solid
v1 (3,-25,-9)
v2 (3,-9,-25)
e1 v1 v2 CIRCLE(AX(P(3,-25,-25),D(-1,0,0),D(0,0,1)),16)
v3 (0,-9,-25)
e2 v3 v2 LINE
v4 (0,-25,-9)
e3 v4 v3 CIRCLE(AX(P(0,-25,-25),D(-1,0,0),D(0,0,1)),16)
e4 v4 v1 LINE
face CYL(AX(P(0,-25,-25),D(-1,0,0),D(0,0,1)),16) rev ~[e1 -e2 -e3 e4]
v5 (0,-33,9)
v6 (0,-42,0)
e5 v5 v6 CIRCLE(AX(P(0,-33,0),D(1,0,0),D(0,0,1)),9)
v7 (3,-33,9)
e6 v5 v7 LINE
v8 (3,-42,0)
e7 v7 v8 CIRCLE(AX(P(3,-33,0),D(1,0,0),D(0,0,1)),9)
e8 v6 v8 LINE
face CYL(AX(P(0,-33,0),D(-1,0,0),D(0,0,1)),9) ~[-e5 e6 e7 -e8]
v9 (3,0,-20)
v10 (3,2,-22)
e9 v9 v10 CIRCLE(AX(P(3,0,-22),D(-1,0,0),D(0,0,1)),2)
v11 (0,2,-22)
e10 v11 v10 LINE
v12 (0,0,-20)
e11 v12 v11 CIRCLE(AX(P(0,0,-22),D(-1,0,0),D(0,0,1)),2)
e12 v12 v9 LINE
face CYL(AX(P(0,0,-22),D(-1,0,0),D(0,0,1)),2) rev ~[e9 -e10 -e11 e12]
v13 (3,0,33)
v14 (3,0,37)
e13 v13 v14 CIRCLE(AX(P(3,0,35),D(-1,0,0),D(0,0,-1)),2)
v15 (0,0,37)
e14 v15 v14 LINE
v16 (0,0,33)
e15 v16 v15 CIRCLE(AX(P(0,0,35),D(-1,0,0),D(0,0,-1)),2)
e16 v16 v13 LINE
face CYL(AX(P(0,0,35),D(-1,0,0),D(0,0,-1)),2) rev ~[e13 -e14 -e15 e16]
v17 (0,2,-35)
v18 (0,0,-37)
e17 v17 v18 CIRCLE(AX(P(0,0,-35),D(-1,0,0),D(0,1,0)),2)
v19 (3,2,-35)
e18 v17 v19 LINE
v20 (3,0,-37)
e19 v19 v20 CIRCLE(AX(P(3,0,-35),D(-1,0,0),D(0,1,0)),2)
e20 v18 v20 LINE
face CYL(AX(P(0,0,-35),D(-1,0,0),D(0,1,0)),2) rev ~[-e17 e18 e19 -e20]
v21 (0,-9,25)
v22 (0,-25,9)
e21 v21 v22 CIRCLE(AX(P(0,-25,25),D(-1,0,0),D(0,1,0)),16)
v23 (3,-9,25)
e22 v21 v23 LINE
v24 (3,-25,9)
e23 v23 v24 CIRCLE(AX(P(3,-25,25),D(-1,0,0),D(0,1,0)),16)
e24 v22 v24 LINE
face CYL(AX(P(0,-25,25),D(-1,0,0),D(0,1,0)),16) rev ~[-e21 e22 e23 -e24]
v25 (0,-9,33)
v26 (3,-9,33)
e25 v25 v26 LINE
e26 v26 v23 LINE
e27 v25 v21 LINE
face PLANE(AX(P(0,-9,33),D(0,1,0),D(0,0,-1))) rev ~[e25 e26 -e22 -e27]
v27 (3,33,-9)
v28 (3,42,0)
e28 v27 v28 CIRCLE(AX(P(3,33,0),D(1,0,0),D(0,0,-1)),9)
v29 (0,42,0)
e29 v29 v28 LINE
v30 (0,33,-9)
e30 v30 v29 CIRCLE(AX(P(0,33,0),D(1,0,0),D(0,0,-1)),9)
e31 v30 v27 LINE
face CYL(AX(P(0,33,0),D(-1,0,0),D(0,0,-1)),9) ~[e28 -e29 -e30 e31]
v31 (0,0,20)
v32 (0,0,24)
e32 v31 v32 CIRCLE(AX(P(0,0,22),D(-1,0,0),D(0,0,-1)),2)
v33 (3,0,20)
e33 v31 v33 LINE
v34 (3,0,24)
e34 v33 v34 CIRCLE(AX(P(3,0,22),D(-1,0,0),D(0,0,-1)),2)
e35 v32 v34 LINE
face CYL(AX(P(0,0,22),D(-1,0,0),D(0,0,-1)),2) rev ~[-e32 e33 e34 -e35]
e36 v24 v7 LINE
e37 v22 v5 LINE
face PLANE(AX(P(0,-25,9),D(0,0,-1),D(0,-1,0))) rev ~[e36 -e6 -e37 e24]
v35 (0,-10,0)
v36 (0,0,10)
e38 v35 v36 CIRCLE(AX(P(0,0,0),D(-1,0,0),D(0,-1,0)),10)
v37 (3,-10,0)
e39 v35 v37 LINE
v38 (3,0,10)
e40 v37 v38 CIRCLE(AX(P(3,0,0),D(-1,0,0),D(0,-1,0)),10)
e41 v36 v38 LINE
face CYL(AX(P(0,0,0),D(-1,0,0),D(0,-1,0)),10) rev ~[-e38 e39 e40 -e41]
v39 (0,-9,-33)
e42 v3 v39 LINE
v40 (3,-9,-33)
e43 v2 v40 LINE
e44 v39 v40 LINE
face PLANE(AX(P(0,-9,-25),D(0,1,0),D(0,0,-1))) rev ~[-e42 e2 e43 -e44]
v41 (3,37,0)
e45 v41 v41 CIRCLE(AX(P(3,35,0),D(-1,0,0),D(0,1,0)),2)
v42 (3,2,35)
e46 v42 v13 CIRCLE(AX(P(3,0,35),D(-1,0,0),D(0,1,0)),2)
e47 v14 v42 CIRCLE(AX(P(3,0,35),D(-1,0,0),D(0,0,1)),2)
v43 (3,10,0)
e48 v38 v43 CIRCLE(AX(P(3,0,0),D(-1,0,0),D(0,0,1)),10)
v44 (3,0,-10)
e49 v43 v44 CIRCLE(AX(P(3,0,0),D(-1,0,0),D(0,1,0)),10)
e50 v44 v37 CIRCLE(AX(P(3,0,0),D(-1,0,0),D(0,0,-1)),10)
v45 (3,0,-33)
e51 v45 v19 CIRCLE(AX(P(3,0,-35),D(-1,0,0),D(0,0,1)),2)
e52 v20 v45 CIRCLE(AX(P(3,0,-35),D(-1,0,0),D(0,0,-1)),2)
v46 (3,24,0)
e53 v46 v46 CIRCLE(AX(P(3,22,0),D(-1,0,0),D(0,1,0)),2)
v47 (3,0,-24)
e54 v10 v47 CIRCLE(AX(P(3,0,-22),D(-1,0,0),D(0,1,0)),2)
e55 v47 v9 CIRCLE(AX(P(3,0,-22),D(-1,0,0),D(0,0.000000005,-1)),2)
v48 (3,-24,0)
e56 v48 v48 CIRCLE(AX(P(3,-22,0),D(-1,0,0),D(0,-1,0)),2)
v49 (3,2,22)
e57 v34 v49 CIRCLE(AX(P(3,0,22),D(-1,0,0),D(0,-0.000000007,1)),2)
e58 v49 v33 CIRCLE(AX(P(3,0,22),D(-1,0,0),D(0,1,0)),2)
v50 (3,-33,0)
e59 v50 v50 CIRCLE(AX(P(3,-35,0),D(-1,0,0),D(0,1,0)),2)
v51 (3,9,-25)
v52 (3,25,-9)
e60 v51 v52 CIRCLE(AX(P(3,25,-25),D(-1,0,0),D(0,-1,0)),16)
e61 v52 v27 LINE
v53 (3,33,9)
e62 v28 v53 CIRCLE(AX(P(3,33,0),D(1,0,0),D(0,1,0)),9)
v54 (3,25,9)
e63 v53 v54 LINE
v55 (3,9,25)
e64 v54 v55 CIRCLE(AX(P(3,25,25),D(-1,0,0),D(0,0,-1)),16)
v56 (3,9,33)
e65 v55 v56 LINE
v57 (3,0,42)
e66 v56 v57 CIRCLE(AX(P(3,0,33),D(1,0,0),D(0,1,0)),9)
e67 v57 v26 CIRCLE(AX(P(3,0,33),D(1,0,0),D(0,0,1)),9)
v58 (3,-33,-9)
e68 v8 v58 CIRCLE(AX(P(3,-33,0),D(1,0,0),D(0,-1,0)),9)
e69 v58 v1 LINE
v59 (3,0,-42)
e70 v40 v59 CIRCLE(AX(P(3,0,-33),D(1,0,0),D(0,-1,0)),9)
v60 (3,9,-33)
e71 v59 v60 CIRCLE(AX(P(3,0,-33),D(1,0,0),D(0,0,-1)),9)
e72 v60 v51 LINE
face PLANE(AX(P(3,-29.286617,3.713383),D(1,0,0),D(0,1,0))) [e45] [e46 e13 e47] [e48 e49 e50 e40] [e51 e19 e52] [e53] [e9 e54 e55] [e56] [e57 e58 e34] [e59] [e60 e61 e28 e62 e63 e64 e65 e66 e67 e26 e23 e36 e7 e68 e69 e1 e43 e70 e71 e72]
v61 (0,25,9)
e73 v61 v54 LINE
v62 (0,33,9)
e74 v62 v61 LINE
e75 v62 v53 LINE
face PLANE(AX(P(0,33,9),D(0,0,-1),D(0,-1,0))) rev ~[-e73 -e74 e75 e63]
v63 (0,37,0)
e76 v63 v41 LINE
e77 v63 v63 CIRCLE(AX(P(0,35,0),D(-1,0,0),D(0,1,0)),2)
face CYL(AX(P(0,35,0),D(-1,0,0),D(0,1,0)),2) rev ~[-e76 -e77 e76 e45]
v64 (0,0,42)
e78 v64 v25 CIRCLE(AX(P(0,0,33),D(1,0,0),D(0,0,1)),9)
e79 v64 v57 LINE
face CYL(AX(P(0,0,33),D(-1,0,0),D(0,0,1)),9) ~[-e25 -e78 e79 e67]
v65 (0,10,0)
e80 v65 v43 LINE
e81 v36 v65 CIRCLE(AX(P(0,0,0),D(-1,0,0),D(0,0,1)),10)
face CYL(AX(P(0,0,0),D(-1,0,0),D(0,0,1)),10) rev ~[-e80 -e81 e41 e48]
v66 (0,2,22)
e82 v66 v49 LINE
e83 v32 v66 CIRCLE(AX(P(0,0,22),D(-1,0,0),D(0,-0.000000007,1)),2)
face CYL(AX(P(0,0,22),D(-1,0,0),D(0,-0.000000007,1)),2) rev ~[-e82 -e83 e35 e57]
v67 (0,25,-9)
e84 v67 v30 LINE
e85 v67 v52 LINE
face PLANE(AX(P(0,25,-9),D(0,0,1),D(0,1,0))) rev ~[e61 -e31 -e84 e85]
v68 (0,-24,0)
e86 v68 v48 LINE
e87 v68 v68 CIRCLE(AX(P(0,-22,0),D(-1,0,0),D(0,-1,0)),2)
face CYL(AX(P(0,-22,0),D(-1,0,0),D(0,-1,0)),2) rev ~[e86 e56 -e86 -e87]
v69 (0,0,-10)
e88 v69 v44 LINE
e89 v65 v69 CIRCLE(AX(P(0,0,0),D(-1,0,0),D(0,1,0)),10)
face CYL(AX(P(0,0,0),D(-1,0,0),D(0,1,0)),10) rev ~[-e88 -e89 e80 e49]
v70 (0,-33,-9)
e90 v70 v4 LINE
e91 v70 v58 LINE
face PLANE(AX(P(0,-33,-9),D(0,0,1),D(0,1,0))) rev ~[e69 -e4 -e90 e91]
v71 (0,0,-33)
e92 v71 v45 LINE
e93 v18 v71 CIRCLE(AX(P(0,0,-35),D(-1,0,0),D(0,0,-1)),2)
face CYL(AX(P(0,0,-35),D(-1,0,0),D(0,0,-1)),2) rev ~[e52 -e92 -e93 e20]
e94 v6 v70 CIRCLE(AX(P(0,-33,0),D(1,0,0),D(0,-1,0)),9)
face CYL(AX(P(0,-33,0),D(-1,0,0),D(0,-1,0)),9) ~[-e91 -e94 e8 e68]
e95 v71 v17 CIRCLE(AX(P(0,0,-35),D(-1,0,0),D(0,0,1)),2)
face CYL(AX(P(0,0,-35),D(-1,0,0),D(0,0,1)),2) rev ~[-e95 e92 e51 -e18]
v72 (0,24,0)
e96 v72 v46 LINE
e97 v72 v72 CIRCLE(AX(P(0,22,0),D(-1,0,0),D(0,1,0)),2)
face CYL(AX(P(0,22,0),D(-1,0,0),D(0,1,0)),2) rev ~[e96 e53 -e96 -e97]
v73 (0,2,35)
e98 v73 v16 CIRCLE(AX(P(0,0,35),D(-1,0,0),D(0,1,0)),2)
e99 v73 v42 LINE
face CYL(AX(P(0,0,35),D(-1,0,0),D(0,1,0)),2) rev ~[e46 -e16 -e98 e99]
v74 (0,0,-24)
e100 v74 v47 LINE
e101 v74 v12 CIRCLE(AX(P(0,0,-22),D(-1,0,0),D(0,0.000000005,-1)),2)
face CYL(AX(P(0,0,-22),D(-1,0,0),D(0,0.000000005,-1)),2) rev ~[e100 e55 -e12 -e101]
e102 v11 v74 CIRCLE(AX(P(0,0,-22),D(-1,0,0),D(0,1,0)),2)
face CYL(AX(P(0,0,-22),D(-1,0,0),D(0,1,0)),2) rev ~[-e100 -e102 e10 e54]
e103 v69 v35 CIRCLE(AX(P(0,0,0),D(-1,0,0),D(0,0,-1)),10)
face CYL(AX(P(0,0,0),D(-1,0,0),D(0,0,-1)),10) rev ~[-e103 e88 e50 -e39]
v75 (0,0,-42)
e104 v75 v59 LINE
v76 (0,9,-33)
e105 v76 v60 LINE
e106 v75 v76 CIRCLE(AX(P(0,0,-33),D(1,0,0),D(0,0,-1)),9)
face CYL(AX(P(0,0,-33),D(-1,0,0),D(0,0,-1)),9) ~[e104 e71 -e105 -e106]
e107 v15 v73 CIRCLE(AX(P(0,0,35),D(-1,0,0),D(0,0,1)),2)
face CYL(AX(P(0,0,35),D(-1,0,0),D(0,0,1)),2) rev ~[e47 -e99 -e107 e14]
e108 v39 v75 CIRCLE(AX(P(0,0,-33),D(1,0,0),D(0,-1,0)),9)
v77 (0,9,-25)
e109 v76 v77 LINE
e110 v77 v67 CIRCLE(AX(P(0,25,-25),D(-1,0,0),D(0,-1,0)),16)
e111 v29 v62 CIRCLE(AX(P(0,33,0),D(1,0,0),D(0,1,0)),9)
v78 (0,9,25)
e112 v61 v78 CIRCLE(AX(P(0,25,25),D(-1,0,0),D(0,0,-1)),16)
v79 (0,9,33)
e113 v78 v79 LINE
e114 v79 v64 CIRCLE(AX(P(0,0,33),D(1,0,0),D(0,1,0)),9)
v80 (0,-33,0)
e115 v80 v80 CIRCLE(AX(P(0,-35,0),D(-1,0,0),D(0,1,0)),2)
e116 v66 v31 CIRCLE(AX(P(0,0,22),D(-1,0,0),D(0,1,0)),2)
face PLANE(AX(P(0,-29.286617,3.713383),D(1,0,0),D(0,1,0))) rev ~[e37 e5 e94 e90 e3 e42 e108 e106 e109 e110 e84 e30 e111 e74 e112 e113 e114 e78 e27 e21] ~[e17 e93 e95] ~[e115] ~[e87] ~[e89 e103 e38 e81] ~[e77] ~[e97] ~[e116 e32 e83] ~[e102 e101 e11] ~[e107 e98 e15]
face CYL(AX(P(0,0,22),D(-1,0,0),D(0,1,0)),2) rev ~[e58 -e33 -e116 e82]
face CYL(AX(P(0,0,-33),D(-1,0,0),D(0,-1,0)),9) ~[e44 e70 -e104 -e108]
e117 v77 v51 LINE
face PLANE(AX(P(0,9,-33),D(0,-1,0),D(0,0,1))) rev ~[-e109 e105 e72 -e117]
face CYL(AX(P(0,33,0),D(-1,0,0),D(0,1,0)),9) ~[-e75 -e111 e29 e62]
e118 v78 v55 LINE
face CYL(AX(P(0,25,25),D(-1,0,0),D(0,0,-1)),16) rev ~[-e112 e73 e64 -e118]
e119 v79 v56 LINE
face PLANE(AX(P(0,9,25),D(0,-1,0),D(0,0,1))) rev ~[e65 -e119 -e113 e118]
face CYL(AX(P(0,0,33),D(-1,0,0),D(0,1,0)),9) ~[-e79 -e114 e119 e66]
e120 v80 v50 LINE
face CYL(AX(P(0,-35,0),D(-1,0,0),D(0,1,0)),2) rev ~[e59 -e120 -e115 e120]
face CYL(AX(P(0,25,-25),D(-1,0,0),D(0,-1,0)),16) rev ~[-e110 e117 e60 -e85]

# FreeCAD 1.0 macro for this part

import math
import FreeCAD as App
import Part
import Sketcher

doc = App.newDocument("Part")
body = doc.addObject("PartDesign::Body", "Body")

# Sketch on YZ plane
sketch1 = body.newObject("Sketcher::SketchObject", "Sketch")
sketch1.AttachmentSupport = (doc.getObject("YZ_Plane"), [""])
sketch1.MapMode = "FlatFace"
sketch1.addGeometry(Part.LineSegment(App.Vector(25, -9, 0), App.Vector(33, -9, 0)), False)
sketch1.addGeometry(Part.ArcOfCircle(Part.Circle(App.Vector(33, 0, 0), App.Vector(0, 0, 1), 9), math.radians(-90), math.radians(0)), False)
sketch1.addGeometry(Part.ArcOfCircle(Part.Circle(App.Vector(33, 0, 0), App.Vector(0, 0, 1), 9), math.radians(0), math.radians(90)), False)
sketch1.addGeometry(Part.LineSegment(App.Vector(33, 9, 0), App.Vector(25, 9, 0)), False)
sketch1.addGeometry(Part.ArcOfCircle(Part.Circle(App.Vector(25, 25, 0), App.Vector(0, 0, 1), 16), math.radians(180), math.radians(270)), False)
sketch1.addGeometry(Part.LineSegment(App.Vector(9, 25, 0), App.Vector(9, 33, 0)), False)
sketch1.addGeometry(Part.ArcOfCircle(Part.Circle(App.Vector(0, 33, 0), App.Vector(0, 0, 1), 9), math.radians(0), math.radians(90)), False)
sketch1.addGeometry(Part.ArcOfCircle(Part.Circle(App.Vector(0, 33, 0), App.Vector(0, 0, 1), 9), math.radians(90), math.radians(180)), False)
sketch1.addGeometry(Part.LineSegment(App.Vector(-9, 33, 0), App.Vector(-9, 25, 0)), False)
sketch1.addGeometry(Part.ArcOfCircle(Part.Circle(App.Vector(-25, 25, 0), App.Vector(0, 0, 1), 16), math.radians(-90), math.radians(0)), False)
sketch1.addGeometry(Part.LineSegment(App.Vector(-25, 9, 0), App.Vector(-33, 9, 0)), False)
sketch1.addGeometry(Part.ArcOfCircle(Part.Circle(App.Vector(-33, 0, 0), App.Vector(0, 0, 1), 9), math.radians(90), math.radians(180)), False)
sketch1.addGeometry(Part.ArcOfCircle(Part.Circle(App.Vector(-33, 0, 0), App.Vector(0, 0, 1), 9), math.radians(180), math.radians(270)), False)
sketch1.addGeometry(Part.LineSegment(App.Vector(-33, -9, 0), App.Vector(-25, -9, 0)), False)
sketch1.addGeometry(Part.ArcOfCircle(Part.Circle(App.Vector(-25, -25, 0), App.Vector(0, 0, 1), 16), math.radians(0), math.radians(90)), False)
sketch1.addGeometry(Part.LineSegment(App.Vector(-9, -25, 0), App.Vector(-9, -33, 0)), False)
sketch1.addGeometry(Part.ArcOfCircle(Part.Circle(App.Vector(0, -33, 0), App.Vector(0, 0, 1), 9), math.radians(180), math.radians(270)), False)
sketch1.addGeometry(Part.ArcOfCircle(Part.Circle(App.Vector(0, -33, 0), App.Vector(0, 0, 1), 9), math.radians(-90), math.radians(0)), False)
sketch1.addGeometry(Part.LineSegment(App.Vector(9, -33, 0), App.Vector(9, -25, 0)), False)
sketch1.addGeometry(Part.ArcOfCircle(Part.Circle(App.Vector(25, -25, 0), App.Vector(0, 0, 1), 16), math.radians(90), math.radians(180)), False)
sketch1.addGeometry(Part.Circle(App.Vector(35, 0, 0), App.Vector(0, 0, 1), 2), False)
sketch1.addGeometry(Part.ArcOfCircle(Part.Circle(App.Vector(0, -35, 0), App.Vector(0, 0, 1), 2), math.radians(90), math.radians(270)), False)
sketch1.addGeometry(Part.ArcOfCircle(Part.Circle(App.Vector(0, -35, 0), App.Vector(0, 0, 1), 2), math.radians(0), math.radians(90)), False)
sketch1.addGeometry(Part.ArcOfCircle(Part.Circle(App.Vector(0, -35, 0), App.Vector(0, 0, 1), 2), math.radians(-90), math.radians(0)), False)
sketch1.addGeometry(Part.ArcOfCircle(Part.Circle(App.Vector(0, -22, 0), App.Vector(0, 0, 1), 2), math.radians(-90), math.radians(0)), False)
sketch1.addGeometry(Part.ArcOfCircle(Part.Circle(App.Vector(0, -22, 0), App.Vector(0, 0, 1), 2), math.radians(90), math.radians(270)), False)
sketch1.addGeometry(Part.ArcOfCircle(Part.Circle(App.Vector(0, -22, 0), App.Vector(0, 0, 1), 2), math.radians(0), math.radians(90)), False)
sketch1.addGeometry(Part.Circle(App.Vector(-35, 0, 0), App.Vector(0, 0, 1), 2), False)
sketch1.addGeometry(Part.Circle(App.Vector(-22, 0, 0), App.Vector(0, 0, 1), 2), False)
sketch1.addGeometry(Part.ArcOfCircle(Part.Circle(App.Vector(0, 0, 0), App.Vector(0, 0, 1), 10), math.radians(0), math.radians(90)), False)
sketch1.addGeometry(Part.ArcOfCircle(Part.Circle(App.Vector(0, 0, 0), App.Vector(0, 0, 1), 10), math.radians(-90), math.radians(0)), False)
sketch1.addGeometry(Part.ArcOfCircle(Part.Circle(App.Vector(0, 0, 0), App.Vector(0, 0, 1), 10), math.radians(180), math.radians(270)), False)
sketch1.addGeometry(Part.ArcOfCircle(Part.Circle(App.Vector(0, 0, 0), App.Vector(0, 0, 1), 10), math.radians(90), math.radians(180)), False)
sketch1.addGeometry(Part.Circle(App.Vector(22, 0, 0), App.Vector(0, 0, 1), 2), False)
sketch1.addGeometry(Part.ArcOfCircle(Part.Circle(App.Vector(0, 22, 0), App.Vector(0, 0, 1), 2), math.radians(90), math.radians(270)), False)
sketch1.addGeometry(Part.ArcOfCircle(Part.Circle(App.Vector(0, 22, 0), App.Vector(0, 0, 1), 2), math.radians(0), math.radians(90)), False)
sketch1.addGeometry(Part.ArcOfCircle(Part.Circle(App.Vector(0, 22, 0), App.Vector(0, 0, 1), 2), math.radians(-90), math.radians(0)), False)
sketch1.addGeometry(Part.ArcOfCircle(Part.Circle(App.Vector(0, 35, 0), App.Vector(0, 0, 1), 2), math.radians(90), math.radians(270)), False)
sketch1.addGeometry(Part.ArcOfCircle(Part.Circle(App.Vector(0, 35, 0), App.Vector(0, 0, 1), 2), math.radians(0), math.radians(90)), False)
sketch1.addGeometry(Part.ArcOfCircle(Part.Circle(App.Vector(0, 35, 0), App.Vector(0, 0, 1), 2), math.radians(-90), math.radians(0)), False)
sketch1.addConstraint(Sketcher.Constraint("Tangent", 0, 2, 1, 1))
sketch1.addConstraint(Sketcher.Constraint("Tangent", 1, 2, 2, 1))
sketch1.addConstraint(Sketcher.Constraint("Tangent", 2, 2, 3, 1))
sketch1.addConstraint(Sketcher.Constraint("Tangent", 3, 2, 4, 2))
sketch1.addConstraint(Sketcher.Constraint("Tangent", 4, 1, 5, 1))
sketch1.addConstraint(Sketcher.Constraint("Tangent", 5, 2, 6, 1))
sketch1.addConstraint(Sketcher.Constraint("Tangent", 6, 2, 7, 1))
sketch1.addConstraint(Sketcher.Constraint("Tangent", 7, 2, 8, 1))
sketch1.addConstraint(Sketcher.Constraint("Tangent", 8, 2, 9, 2))
sketch1.addConstraint(Sketcher.Constraint("Tangent", 9, 1, 10, 1))
sketch1.addConstraint(Sketcher.Constraint("Tangent", 10, 2, 11, 1))
sketch1.addConstraint(Sketcher.Constraint("Tangent", 11, 2, 12, 1))
sketch1.addConstraint(Sketcher.Constraint("Tangent", 12, 2, 13, 1))
sketch1.addConstraint(Sketcher.Constraint("Tangent", 13, 2, 14, 2))
sketch1.addConstraint(Sketcher.Constraint("Tangent", 14, 1, 15, 1))
sketch1.addConstraint(Sketcher.Constraint("Tangent", 15, 2, 16, 1))
sketch1.addConstraint(Sketcher.Constraint("Tangent", 16, 2, 17, 1))
sketch1.addConstraint(Sketcher.Constraint("Tangent", 17, 2, 18, 1))
sketch1.addConstraint(Sketcher.Constraint("Tangent", 18, 2, 19, 2))
sketch1.addConstraint(Sketcher.Constraint("Tangent", 19, 1, 0, 1))
sketch1.addConstraint(Sketcher.Constraint("Tangent", 21, 1, 22, 2))
sketch1.addConstraint(Sketcher.Constraint("Tangent", 22, 1, 23, 2))
sketch1.addConstraint(Sketcher.Constraint("Tangent", 23, 1, 21, 2))
sketch1.addConstraint(Sketcher.Constraint("Tangent", 24, 1, 25, 2))
sketch1.addConstraint(Sketcher.Constraint("Tangent", 25, 1, 26, 2))
sketch1.addConstraint(Sketcher.Constraint("Tangent", 26, 1, 24, 2))
sketch1.addConstraint(Sketcher.Constraint("Tangent", 29, 1, 30, 2))
sketch1.addConstraint(Sketcher.Constraint("Tangent", 30, 1, 31, 2))
sketch1.addConstraint(Sketcher.Constraint("Tangent", 31, 1, 32, 2))
sketch1.addConstraint(Sketcher.Constraint("Tangent", 32, 1, 29, 2))
sketch1.addConstraint(Sketcher.Constraint("Tangent", 34, 1, 35, 2))
sketch1.addConstraint(Sketcher.Constraint("Tangent", 35, 1, 36, 2))
sketch1.addConstraint(Sketcher.Constraint("Tangent", 36, 1, 34, 2))
sketch1.addConstraint(Sketcher.Constraint("Tangent", 37, 1, 38, 2))
sketch1.addConstraint(Sketcher.Constraint("Tangent", 38, 1, 39, 2))
sketch1.addConstraint(Sketcher.Constraint("Tangent", 39, 1, 37, 2))
sketch1.addConstraint(Sketcher.Constraint("Horizontal", 0))
sketch1.addConstraint(Sketcher.Constraint("Horizontal", 3))
sketch1.addConstraint(Sketcher.Constraint("Vertical", 5))
sketch1.addConstraint(Sketcher.Constraint("Vertical", 8))
sketch1.addConstraint(Sketcher.Constraint("Horizontal", 10))
sketch1.addConstraint(Sketcher.Constraint("Horizontal", 13))
sketch1.addConstraint(Sketcher.Constraint("Vertical", 15))
sketch1.addConstraint(Sketcher.Constraint("Vertical", 18))
sketch1.addConstraint(Sketcher.Constraint("Coincident", 29, 3, -1, 1))
sketch1.addConstraint(Sketcher.Constraint("Coincident", 21, 1, 16, 3))
sketch1.addConstraint(Sketcher.Constraint("Coincident", 39, 1, 6, 3))
sketch1.addConstraint(Sketcher.Constraint("Equal", 1, 2))
sketch1.addConstraint(Sketcher.Constraint("Equal", 2, 6))
sketch1.addConstraint(Sketcher.Constraint("Equal", 6, 7))
sketch1.addConstraint(Sketcher.Constraint("Equal", 4, 9))
sketch1.addConstraint(Sketcher.Constraint("Equal", 7, 11))
sketch1.addConstraint(Sketcher.Constraint("Equal", 11, 12))
sketch1.addConstraint(Sketcher.Constraint("Equal", 9, 14))
sketch1.addConstraint(Sketcher.Constraint("Equal", 12, 16))
sketch1.addConstraint(Sketcher.Constraint("Equal", 16, 17))
sketch1.addConstraint(Sketcher.Constraint("Equal", 14, 19))
sketch1.addConstraint(Sketcher.Constraint("Equal", 20, 21))
sketch1.addConstraint(Sketcher.Constraint("Equal", 23, 24))
sketch1.addConstraint(Sketcher.Constraint("Equal", 26, 27))
sketch1.addConstraint(Sketcher.Constraint("Equal", 27, 28))
sketch1.addConstraint(Sketcher.Constraint("Equal", 29, 30))
sketch1.addConstraint(Sketcher.Constraint("Equal", 28, 33))
sketch1.addConstraint(Sketcher.Constraint("Equal", 33, 34))
sketch1.addConstraint(Sketcher.Constraint("Equal", 36, 37))
sketch1.addConstraint(Sketcher.Constraint("Symmetric", 1, 3, 11, 3, -1, 1))
sketch1.addConstraint(Sketcher.Constraint("Symmetric", 6, 3, 16, 3, -1, 1))
sketch1.addConstraint(Sketcher.Constraint("Symmetric", 20, 3, 27, 3, -1, 1))
sketch1.addConstraint(Sketcher.Constraint("Symmetric", 28, 3, 33, 3, -1, 1))
sketch1.addConstraint(Sketcher.Constraint("Symmetric", 24, 3, 34, 3, -1, 1))
sketch1.addConstraint(Sketcher.Constraint("Symmetric", 4, 3, 9, 3, -2))
sketch1.addConstraint(Sketcher.Constraint("Symmetric", 26, 1, 35, 1, -1))
sketch1.addConstraint(Sketcher.Constraint("Symmetric", 22, 1, 38, 1, -1))
sketch1.addConstraint(Sketcher.Constraint("PointOnObject", 20, 3, -1))
sketch1.addConstraint(Sketcher.Constraint("PointOnObject", 21, 3, -2))
sketch1.addConstraint(Sketcher.Constraint("PointOnObject", 28, 3, -1))
sketch1.addConstraint(Sketcher.Constraint("PointOnObject", 1, 2, -1))
sketch1.addConstraint(Sketcher.Constraint("PointOnObject", 6, 2, -2))
sketch1.addConstraint(Sketcher.Constraint("PointOnObject", 11, 2, -1))
sketch1.addConstraint(Sketcher.Constraint("PointOnObject", 16, 2, -2))
sketch1.addConstraint(Sketcher.Constraint("PointOnObject", 23, 1, -2))
sketch1.addConstraint(Sketcher.Constraint("PointOnObject", 24, 1, -2))
sketch1.addConstraint(Sketcher.Constraint("PointOnObject", 25, 1, -2))
sketch1.addConstraint(Sketcher.Constraint("PointOnObject", 29, 1, -1))
sketch1.addConstraint(Sketcher.Constraint("PointOnObject", 30, 1, -2))
sketch1.addConstraint(Sketcher.Constraint("PointOnObject", 31, 1, -1))
sketch1.addConstraint(Sketcher.Constraint("PointOnObject", 32, 1, -2))
sketch1.addConstraint(Sketcher.Constraint("PointOnObject", 34, 1, -2))
sketch1.addConstraint(Sketcher.Constraint("PointOnObject", 36, 1, -2))
sketch1.addConstraint(Sketcher.Constraint("PointOnObject", 37, 1, -2))
sketch1.addConstraint(Sketcher.Constraint("Horizontal", 23, 3, 22, 1))
sketch1.addConstraint(Sketcher.Constraint("Horizontal", 25, 3, 26, 1))
sketch1.addConstraint(Sketcher.Constraint("Equal", 13, 5))
sketch1.addConstraint(Sketcher.Constraint("Diameter", 20, 4.0))
sketch1.addConstraint(Sketcher.Constraint("Radius", 1, 9.0))
sketch1.addConstraint(Sketcher.Constraint("Radius", 4, 16.0))
sketch1.addConstraint(Sketcher.Constraint("Radius", 29, 10.0))
sketch1.addConstraint(Sketcher.Constraint("DistanceX", 0, 1, 0, 2, 8.0))
sketch1.addConstraint(Sketcher.Constraint("DistanceX", -1, 1, 20, 3, 35.0))
sketch1.addConstraint(Sketcher.Constraint("DistanceY", 24, 3, -1, 1, 22.0))
sketch1.addConstraint(Sketcher.Constraint("DistanceX", 28, 3, -1, 1, 22.0))
pad1 = body.newObject("PartDesign::Pad", "Pad")
pad1.Profile = sketch1
pad1.Length = 3

doc.recompute()
